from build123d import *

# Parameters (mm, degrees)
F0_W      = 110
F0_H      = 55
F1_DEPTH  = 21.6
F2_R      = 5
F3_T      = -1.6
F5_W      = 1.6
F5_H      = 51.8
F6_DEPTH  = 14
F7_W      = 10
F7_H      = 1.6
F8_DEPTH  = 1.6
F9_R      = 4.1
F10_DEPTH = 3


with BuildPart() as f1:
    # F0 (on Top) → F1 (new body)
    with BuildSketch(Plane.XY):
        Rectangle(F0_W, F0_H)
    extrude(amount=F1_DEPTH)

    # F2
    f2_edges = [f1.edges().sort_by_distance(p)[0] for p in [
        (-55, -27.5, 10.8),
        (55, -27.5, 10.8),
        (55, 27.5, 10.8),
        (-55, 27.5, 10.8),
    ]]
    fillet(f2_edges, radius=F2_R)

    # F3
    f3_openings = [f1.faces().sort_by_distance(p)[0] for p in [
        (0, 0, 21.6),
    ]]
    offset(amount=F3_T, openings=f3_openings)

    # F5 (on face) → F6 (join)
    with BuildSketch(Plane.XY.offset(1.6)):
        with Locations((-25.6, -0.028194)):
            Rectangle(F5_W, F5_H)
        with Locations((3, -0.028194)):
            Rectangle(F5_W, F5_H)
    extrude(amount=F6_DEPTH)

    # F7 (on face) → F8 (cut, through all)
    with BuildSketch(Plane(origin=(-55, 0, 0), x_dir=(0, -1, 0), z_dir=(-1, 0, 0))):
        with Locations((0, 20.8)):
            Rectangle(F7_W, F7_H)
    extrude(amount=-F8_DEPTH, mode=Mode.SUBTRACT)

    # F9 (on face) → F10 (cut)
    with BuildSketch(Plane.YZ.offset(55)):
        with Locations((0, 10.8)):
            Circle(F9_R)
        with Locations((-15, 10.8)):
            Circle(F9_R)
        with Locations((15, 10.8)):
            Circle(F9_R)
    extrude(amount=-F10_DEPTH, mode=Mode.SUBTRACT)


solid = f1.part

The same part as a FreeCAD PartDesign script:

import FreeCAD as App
import Part
import Sketcher

V = App.Vector
Q = App.Units.Quantity


def edges_at(feature, points):
    """Names of the edges that pass closest to the given points."""
    edges = feature.Shape.Edges
    near = lambda p: min(range(len(edges)), key=lambda i: edges[i].distToShape(Part.Vertex(*p))[0])
    return sorted({f"Edge{near(p) + 1}" for p in points})


def faces_at(feature, points):
    """Names of the faces that lie closest to the given points."""
    faces = feature.Shape.Faces
    near = lambda p: min(range(len(faces)), key=lambda i: faces[i].distToShape(Part.Vertex(*p))[0])
    return sorted({f"Face{near(p) + 1}" for p in points})

doc = App.newDocument("Part")
body = doc.addObject("PartDesign::Body", "Body")

sketch1 = body.newObject("Sketcher::SketchObject", "Sketch")
sketch1.AttachmentSupport = (doc.getObject("XY_Plane"), [""])
sketch1.MapMode = "FlatFace"
sketch1.addGeometry([
    Part.LineSegment(V(-55, 28, 0), V(-55, -28, 0)),
    Part.LineSegment(V(-55, -28, 0), V(55, -28, 0)),
    Part.LineSegment(V(55, -28, 0), V(55, 28, 0)),
    Part.LineSegment(V(55, 28, 0), V(-55, 28, 0)),
], False)
sketch1.addConstraint([
    Sketcher.Constraint("Coincident", 0, 2, 1, 1),
    Sketcher.Constraint("Coincident", 1, 2, 2, 1),
    Sketcher.Constraint("Coincident", 2, 2, 3, 1),
    Sketcher.Constraint("Coincident", 3, 2, 0, 1),
    Sketcher.Constraint("Vertical", 0),
    Sketcher.Constraint("Horizontal", 1),
    Sketcher.Constraint("Vertical", 2),
    Sketcher.Constraint("Horizontal", 3),
    Sketcher.Constraint("Symmetric", 0, 2, 2, 2, -1, 1),
    Sketcher.Constraint("DistanceX", 1, 1, 1, 2, Q("110 mm")),
    Sketcher.Constraint("DistanceY", 0, 2, 0, 1, Q("55 mm")),
])
pad1 = body.newObject("PartDesign::Pad", "Pad")
pad1.Profile = sketch1
pad1.Length = 21.6
doc.recompute()

fillet = body.newObject("PartDesign::Fillet", "Fillet")
fillet.Base = (pad1, edges_at(pad1, [
    (-55, -27.5, 10.8),
    (55, -27.5, 10.8),
    (55, 27.5, 10.8),
    (-55, 27.5, 10.8),
]))
fillet.Radius = 5
doc.recompute()

thickness = body.newObject("PartDesign::Thickness", "Thickness")
thickness.Base = (fillet, faces_at(fillet, [(0, 0, 21.6)]))
thickness.Value = 1.6
thickness.Reversed = True
thickness.Join = "Arc"

sketch2 = body.newObject("Sketcher::SketchObject", "Sketch001")
sketch2.AttachmentSupport = (doc.getObject("XY_Plane"), [""])
sketch2.MapMode = "FlatFace"
sketch2.AttachmentOffset = App.Placement(V(0, 0, 1.6), App.Rotation())
sketch2.addGeometry([
    Part.LineSegment(V(-26.4, 25.9, 0), V(-26.4, -25.9, 0)),
    Part.LineSegment(V(-26.4, -25.9, 0), V(-24.8, -25.9, 0)),
    Part.LineSegment(V(-24.8, -25.9, 0), V(-24.8, 25.9, 0)),
    Part.LineSegment(V(-24.8, 25.9, 0), V(-26.4, 25.9, 0)),
    Part.LineSegment(V(2.2, 25.9, 0), V(2.2, -25.9, 0)),
    Part.LineSegment(V(2.2, -25.9, 0), V(3.8, -25.9, 0)),
    Part.LineSegment(V(3.8, -25.9, 0), V(3.8, 25.9, 0)),
    Part.LineSegment(V(3.8, 25.9, 0), V(2.2, 25.9, 0)),
], False)
sketch2.addConstraint([
    Sketcher.Constraint("Coincident", 0, 2, 1, 1),
    Sketcher.Constraint("Coincident", 1, 2, 2, 1),
    Sketcher.Constraint("Coincident", 2, 2, 3, 1),
    Sketcher.Constraint("Coincident", 3, 2, 0, 1),
    Sketcher.Constraint("Coincident", 4, 2, 5, 1),
    Sketcher.Constraint("Coincident", 5, 2, 6, 1),
    Sketcher.Constraint("Coincident", 6, 2, 7, 1),
    Sketcher.Constraint("Coincident", 7, 2, 4, 1),
    Sketcher.Constraint("Vertical", 0),
    Sketcher.Constraint("Horizontal", 1),
    Sketcher.Constraint("Vertical", 2),
    Sketcher.Constraint("Horizontal", 3),
    Sketcher.Constraint("Vertical", 4),
    Sketcher.Constraint("Horizontal", 5),
    Sketcher.Constraint("Vertical", 6),
    Sketcher.Constraint("Horizontal", 7),
    Sketcher.Constraint("Horizontal", 1, 2, 4, 2),
    Sketcher.Constraint("Horizontal", 3, 2, 6, 2),
    Sketcher.Constraint("Equal", 3, 5),
    Sketcher.Constraint("DistanceX", 1, 1, 1, 2, Q("1.6 mm")),
    Sketcher.Constraint("DistanceY", 0, 2, 0, 1, Q("51.8 mm")),
    Sketcher.Constraint("DistanceX", 1, 2, 4, 2, Q("27 mm")),
    Sketcher.Constraint("DistanceX", 0, 2, -1, 1, Q("26.4 mm")),
    Sketcher.Constraint("DistanceY", 0, 2, -1, 1, Q("25.928194 mm")),
])
pad2 = body.newObject("PartDesign::Pad", "Pad001")
pad2.Profile = sketch2
pad2.Length = 14

sketch3 = body.newObject("Sketcher::SketchObject", "Sketch002")
sketch3.AttachmentSupport = (doc.getObject("YZ_Plane"), [""])
sketch3.MapMode = "FlatFace"
sketch3.AttachmentOffset = App.Placement(V(0, 0, -55), App.Rotation())
sketch3.addGeometry([
    Part.LineSegment(V(5, 21.6, 0), V(5, 20, 0)),
    Part.LineSegment(V(5, 20, 0), V(-5, 20, 0)),
    Part.LineSegment(V(-5, 20, 0), V(-5, 21.6, 0)),
    Part.LineSegment(V(-5, 21.6, 0), V(5, 21.6, 0)),
], False)
sketch3.addConstraint([
    Sketcher.Constraint("Coincident", 0, 2, 1, 1),
    Sketcher.Constraint("Coincident", 1, 2, 2, 1),
    Sketcher.Constraint("Coincident", 2, 2, 3, 1),
    Sketcher.Constraint("Coincident", 3, 2, 0, 1),
    Sketcher.Constraint("Vertical", 0),
    Sketcher.Constraint("Horizontal", 1),
    Sketcher.Constraint("Vertical", 2),
    Sketcher.Constraint("Horizontal", 3),
    Sketcher.Constraint("DistanceX", 1, 2, 1, 1, Q("10 mm")),
    Sketcher.Constraint("DistanceY", 0, 2, 0, 1, Q("1.6 mm")),
    Sketcher.Constraint("DistanceX", -1, 1, 0, 2, Q("5 mm")),
    Sketcher.Constraint("DistanceY", -1, 1, 0, 2, Q("20 mm")),
])
pocket1 = body.newObject("PartDesign::Pocket", "Pocket")
pocket1.Profile = sketch3
pocket1.Length = 1.6
pocket1.Reversed = True

sketch4 = body.newObject("Sketcher::SketchObject", "Sketch003")
sketch4.AttachmentSupport = (doc.getObject("YZ_Plane"), [""])
sketch4.MapMode = "FlatFace"
sketch4.AttachmentOffset = App.Placement(V(0, 0, 55), App.Rotation())
sketch4.addGeometry([
    Part.Circle(V(0, 10.8, 0), V(0, 0, 1), 4.1),
    Part.Circle(V(-15, 10.8, 0), V(0, 0, 1), 4.1),
    Part.Circle(V(15, 10.8, 0), V(0, 0, 1), 4.1),
], False)
sketch4.addConstraint([
    Sketcher.Constraint("Equal", 0, 1),
    Sketcher.Constraint("Equal", 1, 2),
    Sketcher.Constraint("Symmetric", 1, 3, 2, 3, -2),
    Sketcher.Constraint("PointOnObject", 0, 3, -2),
    Sketcher.Constraint("Horizontal", 0, 3, 1, 3),
    Sketcher.Constraint("Diameter", 0, Q("8.2 mm")),
    Sketcher.Constraint("DistanceX", 1, 3, -1, 1, Q("15 mm")),
    Sketcher.Constraint("DistanceY", -1, 1, 0, 3, Q("10.8 mm")),
])
pocket2 = body.newObject("PartDesign::Pocket", "Pocket001")
pocket2.Profile = sketch4
pocket2.Length = 3

doc.recompute()
